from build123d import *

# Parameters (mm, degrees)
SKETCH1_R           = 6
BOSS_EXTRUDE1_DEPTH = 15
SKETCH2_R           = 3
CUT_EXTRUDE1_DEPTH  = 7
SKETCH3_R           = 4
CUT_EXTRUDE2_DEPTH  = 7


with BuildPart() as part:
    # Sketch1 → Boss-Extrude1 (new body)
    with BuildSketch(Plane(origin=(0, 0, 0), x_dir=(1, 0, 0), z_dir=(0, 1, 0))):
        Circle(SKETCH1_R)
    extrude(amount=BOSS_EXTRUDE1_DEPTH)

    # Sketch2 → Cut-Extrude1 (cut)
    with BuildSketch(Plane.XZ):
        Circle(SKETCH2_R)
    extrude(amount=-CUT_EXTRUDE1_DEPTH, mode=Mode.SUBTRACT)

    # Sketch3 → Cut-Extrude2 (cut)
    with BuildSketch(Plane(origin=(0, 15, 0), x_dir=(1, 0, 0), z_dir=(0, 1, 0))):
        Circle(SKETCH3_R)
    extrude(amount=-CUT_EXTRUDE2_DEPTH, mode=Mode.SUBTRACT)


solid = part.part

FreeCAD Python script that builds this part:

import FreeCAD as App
import Part
import Sketcher

doc = App.newDocument("Part")
body = doc.addObject("PartDesign::Body", "Body")

# Sketch on XZ plane
sketch1 = body.newObject("Sketcher::SketchObject", "Sketch")
sketch1.AttachmentSupport = (doc.getObject("XZ_Plane"), [""])
sketch1.MapMode = "FlatFace"
sketch1.addGeometry(Part.Circle(App.Vector(0, 0, 0), App.Vector(0, 0, 1), 6), False)
sketch1.addConstraint([
    Sketcher.Constraint("Coincident", 0, 3, -1, 1),
    Sketcher.Constraint("Diameter", 0, 12.0),
])
pad1 = body.newObject("PartDesign::Pad", "Pad")
pad1.Profile = sketch1
pad1.Length = 15
pad1.Reversed = True

# Sketch on XZ plane
sketch2 = body.newObject("Sketcher::SketchObject", "Sketch001")
sketch2.AttachmentSupport = (doc.getObject("XZ_Plane"), [""])
sketch2.MapMode = "FlatFace"
sketch2.addGeometry(Part.Circle(App.Vector(0, 0, 0), App.Vector(0, 0, 1), 3), False)
sketch2.addConstraint([
    Sketcher.Constraint("Coincident", 0, 3, -1, 1),
    Sketcher.Constraint("Diameter", 0, 6.0),
])
pocket1 = body.newObject("PartDesign::Pocket", "Pocket")
pocket1.Profile = sketch2
pocket1.Length = 7

# Sketch on XZ plane
sketch3 = body.newObject("Sketcher::SketchObject", "Sketch002")
sketch3.AttachmentSupport = (doc.getObject("XZ_Plane"), [""])
sketch3.MapMode = "FlatFace"
sketch3.AttachmentOffset = App.Placement(App.Vector(0, 0, -15), App.Rotation())
sketch3.addGeometry(Part.Circle(App.Vector(0, 0, 0), App.Vector(0, 0, 1), 4), False)
sketch3.addConstraint([
    Sketcher.Constraint("Coincident", 0, 3, -1, 1),
    Sketcher.Constraint("Diameter", 0, 8.0),
])
pocket2 = body.newObject("PartDesign::Pocket", "Pocket001")
pocket2.Profile = sketch3
pocket2.Length = 7
pocket2.Reversed = True

doc.recompute()
